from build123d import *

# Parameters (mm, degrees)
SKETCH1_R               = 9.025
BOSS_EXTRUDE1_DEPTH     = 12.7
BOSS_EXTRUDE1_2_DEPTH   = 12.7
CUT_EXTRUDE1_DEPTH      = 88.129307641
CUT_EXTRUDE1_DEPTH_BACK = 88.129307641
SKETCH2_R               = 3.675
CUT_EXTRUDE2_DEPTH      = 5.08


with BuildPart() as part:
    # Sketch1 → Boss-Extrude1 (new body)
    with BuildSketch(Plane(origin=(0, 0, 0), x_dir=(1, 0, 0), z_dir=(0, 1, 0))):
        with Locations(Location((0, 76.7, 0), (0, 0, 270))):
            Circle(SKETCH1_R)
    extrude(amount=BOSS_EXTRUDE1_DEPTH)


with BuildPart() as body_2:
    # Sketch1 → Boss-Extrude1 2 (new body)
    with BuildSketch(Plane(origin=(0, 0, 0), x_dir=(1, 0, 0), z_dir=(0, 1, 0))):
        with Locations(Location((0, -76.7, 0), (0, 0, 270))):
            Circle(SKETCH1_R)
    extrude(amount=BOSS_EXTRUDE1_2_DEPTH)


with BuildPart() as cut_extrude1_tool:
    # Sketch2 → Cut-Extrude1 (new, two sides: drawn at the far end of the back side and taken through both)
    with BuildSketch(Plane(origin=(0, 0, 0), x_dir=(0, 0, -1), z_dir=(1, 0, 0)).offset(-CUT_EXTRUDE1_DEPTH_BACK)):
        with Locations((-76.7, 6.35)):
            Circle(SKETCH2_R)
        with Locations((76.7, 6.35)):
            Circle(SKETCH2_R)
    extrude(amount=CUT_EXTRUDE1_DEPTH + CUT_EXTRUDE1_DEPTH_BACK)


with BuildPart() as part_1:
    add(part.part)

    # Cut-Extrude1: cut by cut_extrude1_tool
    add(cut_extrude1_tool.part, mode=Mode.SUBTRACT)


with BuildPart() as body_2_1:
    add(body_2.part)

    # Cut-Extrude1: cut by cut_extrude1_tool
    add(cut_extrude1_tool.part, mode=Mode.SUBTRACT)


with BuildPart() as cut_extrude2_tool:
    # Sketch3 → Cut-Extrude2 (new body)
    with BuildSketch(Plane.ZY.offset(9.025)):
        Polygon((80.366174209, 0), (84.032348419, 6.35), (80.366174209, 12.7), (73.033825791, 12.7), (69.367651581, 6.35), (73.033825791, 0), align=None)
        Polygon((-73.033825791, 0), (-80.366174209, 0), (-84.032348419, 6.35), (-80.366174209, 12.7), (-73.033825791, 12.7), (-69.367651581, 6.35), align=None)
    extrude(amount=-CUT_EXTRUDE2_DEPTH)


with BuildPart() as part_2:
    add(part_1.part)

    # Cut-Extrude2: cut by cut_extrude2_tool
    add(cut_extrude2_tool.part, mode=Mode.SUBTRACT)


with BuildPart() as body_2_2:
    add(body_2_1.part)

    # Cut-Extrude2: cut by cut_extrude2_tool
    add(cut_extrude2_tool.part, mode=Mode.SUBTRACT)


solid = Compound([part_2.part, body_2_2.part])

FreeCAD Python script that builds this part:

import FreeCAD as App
import Part
import Sketcher
from FreeCAD import Vector
Q = App.Units.Quantity

doc = App.newDocument("Part")
body = doc.addObject("PartDesign::Body", "Body")

sketch1 = body.newObject("Sketcher::SketchObject", "Sketch")
sketch1.AttachmentSupport = (doc.getObject("XZ_Plane"), [""])
sketch1.MapMode = "FlatFace"
sketch1.addGeometry(Part.Circle(Vector(0, -77, 0), Vector(0, 0, 1), 9), False)
sketch1.addConstraint([
    Sketcher.Constraint("PointOnObject", 0, 3, -2),
    Sketcher.Constraint("Diameter", 0, Q("18.05 mm")),
    Sketcher.Constraint("DistanceY", 0, 3, -1, 1, Q("76.7 mm")),
])
pad1 = body.newObject("PartDesign::Pad", "Pad")
pad1.Profile = sketch1
pad1.Length = Q("0.5 in")
pad1.Reversed = True
body2 = doc.addObject("PartDesign::Body", "Body001")

sketch2 = body2.newObject("Sketcher::SketchObject", "Sketch001")
sketch2.AttachmentSupport = (doc.getObject("XZ_Plane001"), [""])
sketch2.MapMode = "FlatFace"
sketch2.addGeometry(Part.Circle(Vector(0, 77, 0), Vector(0, 0, 1), 9), False)
sketch2.addConstraint([
    Sketcher.Constraint("PointOnObject", 0, 3, -2),
    Sketcher.Constraint("Diameter", 0, Q("18.05 mm")),
    Sketcher.Constraint("DistanceY", -1, 1, 0, 3, Q("76.7 mm")),
])
pad2 = body2.newObject("PartDesign::Pad", "Pad001")
pad2.Profile = sketch2
pad2.Length = Q("0.5 in")
pad2.Reversed = True
body3 = doc.addObject("PartDesign::Body", "Body002")
body3.AllowCompound = True

sketch3 = body3.newObject("Sketcher::SketchObject", "Sketch002")
sketch3.AttachmentSupport = (doc.getObject("YZ_Plane002"), [""])
sketch3.MapMode = "FlatFace"
sketch3.addGeometry([
    Part.Circle(Vector(6.3, 76.7, 0), Vector(0, 0, 1), 3.7),
    Part.Circle(Vector(6.3, -76.7, 0), Vector(0, 0, 1), 3.7),
], False)
sketch3.addConstraint([
    Sketcher.Constraint("Equal", 0, 1),
    Sketcher.Constraint("Symmetric", 0, 3, 1, 3, -1),
    Sketcher.Constraint("Diameter", 0, Q("7.35 mm")),
    Sketcher.Constraint("DistanceX", -1, 1, 0, 3, Q("0.25 in")),
    Sketcher.Constraint("DistanceY", -1, 1, 0, 3, Q("76.7 mm")),
])
pad3 = body3.newObject("PartDesign::Pad", "Pad002")
pad3.Profile = sketch3
pad3.Type = "TwoLengths"
pad3.Length = 88.129308
pad3.Length2 = 88.129308
doc.recompute()

body4 = doc.addObject("PartDesign::Body", "Body003")
body4.BaseFeature = body3
boolean = body.newObject("PartDesign::Boolean", "Boolean")
boolean.Type = "Cut"
boolean.addObjects([body4])
doc.recompute()

boolean2 = body2.newObject("PartDesign::Boolean", "Boolean001")
boolean2.Type = "Cut"
boolean2.addObjects([body3])
body5 = doc.addObject("PartDesign::Body", "Body004")
body5.AllowCompound = True

sketch4 = body5.newObject("Sketcher::SketchObject", "Sketch003")
sketch4.AttachmentSupport = (doc.getObject("YZ_Plane004"), [""])
sketch4.MapMode = "FlatFace"
sketch4.AttachmentOffset = App.Placement(Vector(0, 0, -9.025), App.Rotation())
sketch4.addGeometry([
    Part.LineSegment(Vector(0, 80, 0), Vector(6, 84, 0)),
    Part.LineSegment(Vector(6, 84, 0), Vector(13, 80, 0)),
    Part.LineSegment(Vector(13, 80, 0), Vector(13, 73, 0)),
    Part.LineSegment(Vector(13, 73, 0), Vector(6, 69, 0)),
    Part.LineSegment(Vector(6, 69, 0), Vector(0, 73, 0)),
    Part.LineSegment(Vector(0, 73, 0), Vector(0, 80, 0)),
    Part.LineSegment(Vector(0, -80, 0), Vector(0, -73, 0)),
    Part.LineSegment(Vector(0, -73, 0), Vector(6, -69, 0)),
    Part.LineSegment(Vector(6, -69, 0), Vector(13, -73, 0)),
    Part.LineSegment(Vector(13, -73, 0), Vector(13, -80, 0)),
    Part.LineSegment(Vector(13, -80, 0), Vector(6, -84, 0)),
    Part.LineSegment(Vector(6, -84, 0), Vector(0, -80, 0)),
], False)
sketch4.addConstraint([
    Sketcher.Constraint("Coincident", 0, 2, 1, 1),
    Sketcher.Constraint("Coincident", 1, 2, 2, 1),
    Sketcher.Constraint("Coincident", 2, 2, 3, 1),
    Sketcher.Constraint("Coincident", 3, 2, 4, 1),
    Sketcher.Constraint("Coincident", 4, 2, 5, 1),
    Sketcher.Constraint("Coincident", 5, 2, 0, 1),
    Sketcher.Constraint("Coincident", 6, 2, 7, 1),
    Sketcher.Constraint("Coincident", 7, 2, 8, 1),
    Sketcher.Constraint("Coincident", 8, 2, 9, 1),
    Sketcher.Constraint("Coincident", 9, 2, 10, 1),
    Sketcher.Constraint("Coincident", 10, 2, 11, 1),
    Sketcher.Constraint("Coincident", 11, 2, 6, 1),
    Sketcher.Constraint("Vertical", 2),
    Sketcher.Constraint("Vertical", 5),
    Sketcher.Constraint("Vertical", 6),
    Sketcher.Constraint("Vertical", 9),
    Sketcher.Constraint("Symmetric", 4, 2, 6, 2, -1, 1),
    Sketcher.Constraint("Symmetric", 3, 2, 7, 2, -1),
    Sketcher.Constraint("Symmetric", 2, 2, 8, 2, -1),
    Sketcher.Constraint("Symmetric", 0, 2, 10, 2, -1),
    Sketcher.Constraint("Symmetric", 5, 2, 11, 2, -1),
    Sketcher.Constraint("Parallel", 0, 3),
    Sketcher.Constraint("Parallel", 1, 4),
    Sketcher.Constraint("Parallel", 3, 7),
    Sketcher.Constraint("Parallel", 7, 10),
    Sketcher.Constraint("Horizontal", 2, 2, 4, 2),
    Sketcher.Constraint("Horizontal", 1, 2, 5, 2),
    Sketcher.Constraint("Angle", 0, Q("30 deg")),
    Sketcher.Constraint("DistanceX", -1, 1, 1, 2, Q("0.5 in")),
    Sketcher.Constraint("DistanceY", 2, 2, 2, 1, Q("7.332348 mm")),
    Sketcher.Constraint("DistanceY", 6, 2, 5, 2, Q("153.4 mm")),
])
pad4 = body5.newObject("PartDesign::Pad", "Pad003")
pad4.Profile = sketch4
pad4.Length = Q("0.2 in")
doc.recompute()

body6 = doc.addObject("PartDesign::Body", "Body005")
body6.BaseFeature = body5
boolean3 = body.newObject("PartDesign::Boolean", "Boolean002")
boolean3.Type = "Cut"
boolean3.addObjects([body6])
doc.recompute()

boolean4 = body2.newObject("PartDesign::Boolean", "Boolean003")
boolean4.Type = "Cut"
boolean4.addObjects([body5])

doc.recompute()
